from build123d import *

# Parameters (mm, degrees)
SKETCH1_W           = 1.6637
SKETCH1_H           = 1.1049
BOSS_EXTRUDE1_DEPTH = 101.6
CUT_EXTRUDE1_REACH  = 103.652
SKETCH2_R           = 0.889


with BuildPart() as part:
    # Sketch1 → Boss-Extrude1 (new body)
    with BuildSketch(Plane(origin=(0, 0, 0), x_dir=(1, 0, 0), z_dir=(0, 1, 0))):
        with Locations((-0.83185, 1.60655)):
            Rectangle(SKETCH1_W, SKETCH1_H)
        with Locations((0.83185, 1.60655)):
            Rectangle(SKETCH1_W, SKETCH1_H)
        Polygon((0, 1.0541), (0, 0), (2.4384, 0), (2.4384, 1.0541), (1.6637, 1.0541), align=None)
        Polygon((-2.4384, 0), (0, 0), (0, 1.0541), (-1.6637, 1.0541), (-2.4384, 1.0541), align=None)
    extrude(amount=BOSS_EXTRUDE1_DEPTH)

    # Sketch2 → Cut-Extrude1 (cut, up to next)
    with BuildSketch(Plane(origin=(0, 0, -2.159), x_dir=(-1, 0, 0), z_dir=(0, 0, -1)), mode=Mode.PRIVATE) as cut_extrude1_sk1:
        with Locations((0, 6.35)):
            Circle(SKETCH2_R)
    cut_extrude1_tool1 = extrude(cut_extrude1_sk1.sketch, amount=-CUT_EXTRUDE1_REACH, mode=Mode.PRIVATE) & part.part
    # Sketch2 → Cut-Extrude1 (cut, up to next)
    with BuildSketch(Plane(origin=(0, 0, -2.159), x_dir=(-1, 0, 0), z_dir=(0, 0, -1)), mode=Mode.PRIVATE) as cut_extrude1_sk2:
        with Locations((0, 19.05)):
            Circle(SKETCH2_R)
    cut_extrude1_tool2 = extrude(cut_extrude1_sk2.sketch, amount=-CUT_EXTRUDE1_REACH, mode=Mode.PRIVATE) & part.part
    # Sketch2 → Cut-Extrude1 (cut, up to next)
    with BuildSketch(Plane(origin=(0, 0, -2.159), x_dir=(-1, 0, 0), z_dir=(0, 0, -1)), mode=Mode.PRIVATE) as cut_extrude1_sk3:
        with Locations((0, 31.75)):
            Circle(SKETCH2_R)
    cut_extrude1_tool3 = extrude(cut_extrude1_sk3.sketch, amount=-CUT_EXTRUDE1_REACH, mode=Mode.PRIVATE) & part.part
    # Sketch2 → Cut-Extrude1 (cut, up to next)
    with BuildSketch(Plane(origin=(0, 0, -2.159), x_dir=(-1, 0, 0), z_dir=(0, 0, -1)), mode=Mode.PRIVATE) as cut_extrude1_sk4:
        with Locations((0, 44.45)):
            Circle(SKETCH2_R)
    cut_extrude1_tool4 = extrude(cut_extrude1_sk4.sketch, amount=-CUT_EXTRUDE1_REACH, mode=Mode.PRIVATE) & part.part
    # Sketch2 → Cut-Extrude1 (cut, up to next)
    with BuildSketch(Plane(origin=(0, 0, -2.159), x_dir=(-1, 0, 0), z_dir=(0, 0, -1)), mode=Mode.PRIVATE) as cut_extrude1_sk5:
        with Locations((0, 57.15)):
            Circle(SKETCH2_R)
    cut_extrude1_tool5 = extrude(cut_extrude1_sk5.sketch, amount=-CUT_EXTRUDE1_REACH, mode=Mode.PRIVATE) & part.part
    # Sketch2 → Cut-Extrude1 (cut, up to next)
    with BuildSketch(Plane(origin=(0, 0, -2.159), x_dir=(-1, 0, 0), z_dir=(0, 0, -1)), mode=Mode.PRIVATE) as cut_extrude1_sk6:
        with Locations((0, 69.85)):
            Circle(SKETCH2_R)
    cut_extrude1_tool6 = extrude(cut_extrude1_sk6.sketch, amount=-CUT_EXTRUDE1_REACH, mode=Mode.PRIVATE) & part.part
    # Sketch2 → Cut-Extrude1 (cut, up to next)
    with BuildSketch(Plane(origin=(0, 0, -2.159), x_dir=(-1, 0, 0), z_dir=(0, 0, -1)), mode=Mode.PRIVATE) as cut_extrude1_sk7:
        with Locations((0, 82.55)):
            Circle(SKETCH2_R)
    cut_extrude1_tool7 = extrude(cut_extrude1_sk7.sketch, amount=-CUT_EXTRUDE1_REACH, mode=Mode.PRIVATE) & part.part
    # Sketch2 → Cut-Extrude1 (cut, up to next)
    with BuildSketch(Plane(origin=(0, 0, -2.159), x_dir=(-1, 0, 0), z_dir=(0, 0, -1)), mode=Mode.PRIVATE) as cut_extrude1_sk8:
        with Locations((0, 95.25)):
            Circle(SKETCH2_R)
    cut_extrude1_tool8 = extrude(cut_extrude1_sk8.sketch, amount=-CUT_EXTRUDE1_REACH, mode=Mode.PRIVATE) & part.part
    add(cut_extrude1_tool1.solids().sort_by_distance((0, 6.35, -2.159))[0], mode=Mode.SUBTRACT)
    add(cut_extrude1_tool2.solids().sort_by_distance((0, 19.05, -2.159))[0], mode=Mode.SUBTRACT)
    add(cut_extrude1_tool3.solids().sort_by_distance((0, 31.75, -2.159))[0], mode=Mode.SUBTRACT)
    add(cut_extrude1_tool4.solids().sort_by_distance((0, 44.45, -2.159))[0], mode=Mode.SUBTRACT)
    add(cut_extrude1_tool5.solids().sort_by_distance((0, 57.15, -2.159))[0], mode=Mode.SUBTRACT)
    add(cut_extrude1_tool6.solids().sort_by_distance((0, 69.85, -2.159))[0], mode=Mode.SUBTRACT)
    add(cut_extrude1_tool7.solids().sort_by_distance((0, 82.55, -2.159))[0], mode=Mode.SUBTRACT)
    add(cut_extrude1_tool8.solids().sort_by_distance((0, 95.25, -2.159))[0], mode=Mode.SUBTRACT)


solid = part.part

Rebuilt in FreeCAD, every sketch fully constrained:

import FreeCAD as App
import Part
import Sketcher
Q = App.Units.Quantity

doc = App.newDocument("Part")
params = doc.addObject("Spreadsheet::Sheet", "Params")
for row, (alias, value) in enumerate([
    ("sketch1_width", "0.192 in"),
    ("sketch1_width2", "0.131 in"),
    ("pad1_length", "4 in"),
    ("sketch2_diameter", "0.07 in"),
    ("sketch3_diameter", "0.07 in"),
    ("sketch4_diameter", "0.07 in"),
    ("sketch5_diameter", "0.07 in"),
    ("sketch6_diameter", "0.07 in"),
    ("sketch7_diameter", "0.07 in"),
    ("sketch8_diameter", "0.07 in"),
    ("sketch9_diameter", "0.07 in"),
], start=1):
    params.set(f"A{row}", alias)
    params.set(f"B{row}", "=" + value)
    params.setAlias(f"B{row}", alias)

body = doc.addObject("PartDesign::Body", "Body")

sketch1 = body.newObject("Sketcher::SketchObject", "Sketch")
sketch1.AttachmentSupport = (doc.getObject("XZ_Plane"), [""])
sketch1.MapMode = "FlatFace"
sketch1.addGeometry([
    Part.LineSegment(App.Vector(-1.7, -2.2, 0), App.Vector(-1.7, -1.1, 0)),
    Part.LineSegment(App.Vector(-1.7, -1.1, 0), App.Vector(-2.4, -1.1, 0)),
    Part.LineSegment(App.Vector(-2.4, -1.1, 0), App.Vector(-2.4, 0, 0)),
    Part.LineSegment(App.Vector(-2.4, 0, 0), App.Vector(2.4, 0, 0)),
    Part.LineSegment(App.Vector(2.4, 0, 0), App.Vector(2.4, -1.1, 0)),
    Part.LineSegment(App.Vector(2.4, -1.1, 0), App.Vector(1.7, -1.1, 0)),
    Part.LineSegment(App.Vector(1.7, -1.1, 0), App.Vector(1.7, -2.2, 0)),
    Part.LineSegment(App.Vector(1.7, -2.2, 0), App.Vector(-1.7, -2.2, 0)),
], False)
sketch1.addConstraint([
    Sketcher.Constraint("Coincident", 0, 2, 1, 1),
    Sketcher.Constraint("Coincident", 1, 2, 2, 1),
    Sketcher.Constraint("Coincident", 2, 2, 3, 1),
    Sketcher.Constraint("Coincident", 3, 2, 4, 1),
    Sketcher.Constraint("Coincident", 4, 2, 5, 1),
    Sketcher.Constraint("Coincident", 5, 2, 6, 1),
    Sketcher.Constraint("Coincident", 6, 2, 7, 1),
    Sketcher.Constraint("Coincident", 7, 2, 0, 1),
    Sketcher.Constraint("Vertical", 0),
    Sketcher.Constraint("Horizontal", 1),
    Sketcher.Constraint("Vertical", 2),
    Sketcher.Constraint("Horizontal", 3),
    Sketcher.Constraint("Vertical", 4),
    Sketcher.Constraint("Horizontal", 5),
    Sketcher.Constraint("Vertical", 6),
    Sketcher.Constraint("Horizontal", 7),
    Sketcher.Constraint("Symmetric", 2, 2, 3, 2, -1, 1),
    Sketcher.Constraint("Symmetric", 0, 2, 5, 2, -2),
    Sketcher.Constraint("DistanceX", 3, 1, 3, 2, Q("0.192 in")),
    Sketcher.Constraint("DistanceX", 7, 2, 7, 1, Q("0.131 in")),
    Sketcher.Constraint("DistanceY", 0, 1, 0, 2, Q("0.0435 in")),
    Sketcher.Constraint("DistanceY", 2, 1, 2, 2, Q("0.0415 in")),
])
sketch1.setExpression("Constraints[18]", "Params.sketch1_width")
sketch1.setExpression("Constraints[19]", "Params.sketch1_width2")
pad1 = body.newObject("PartDesign::Pad", "Pad")
pad1.Profile = sketch1
pad1.setExpression("Length", "Params.pad1_length")
pad1.Reversed = True

sketch2 = body.newObject("Sketcher::SketchObject", "Sketch001")
sketch2.AttachmentSupport = (doc.getObject("XY_Plane"), [""])
sketch2.MapMode = "FlatFace"
sketch2.AttachmentOffset = App.Placement(App.Vector(0, 0, -0.085 * 25.4), App.Rotation())
sketch2.addGeometry(Part.Circle(App.Vector(0, 6.3, 0), App.Vector(0, 0, 1), 0.9), False)
sketch2.addConstraint([
    Sketcher.Constraint("PointOnObject", 0, 3, -2),
    Sketcher.Constraint("Diameter", 0, Q("0.07 in")),
    Sketcher.Constraint("DistanceY", -1, 1, 0, 3, Q("0.25 in")),
])
sketch2.setExpression("Constraints[1]", "Params.sketch2_diameter")
pocket1 = body.newObject("PartDesign::Pocket", "Pocket")
pocket1.Profile = sketch2
pocket1.Type = "UpToFirst"
pocket1.Reversed = True

sketch3 = body.newObject("Sketcher::SketchObject", "Sketch002")
sketch3.AttachmentSupport = (doc.getObject("XY_Plane"), [""])
sketch3.MapMode = "FlatFace"
sketch3.AttachmentOffset = App.Placement(App.Vector(0, 0, -0.085 * 25.4), App.Rotation())
sketch3.addGeometry(Part.Circle(App.Vector(0, 19.1, 0), App.Vector(0, 0, 1), 0.9), False)
sketch3.addConstraint([
    Sketcher.Constraint("PointOnObject", 0, 3, -2),
    Sketcher.Constraint("Diameter", 0, Q("0.07 in")),
    Sketcher.Constraint("DistanceY", -1, 1, 0, 3, Q("0.75 in")),
])
sketch3.setExpression("Constraints[1]", "Params.sketch3_diameter")
pocket2 = body.newObject("PartDesign::Pocket", "Pocket001")
pocket2.Profile = sketch3
pocket2.Type = "UpToFirst"
pocket2.Reversed = True

sketch4 = body.newObject("Sketcher::SketchObject", "Sketch003")
sketch4.AttachmentSupport = (doc.getObject("XY_Plane"), [""])
sketch4.MapMode = "FlatFace"
sketch4.AttachmentOffset = App.Placement(App.Vector(0, 0, -0.085 * 25.4), App.Rotation())
sketch4.addGeometry(Part.Circle(App.Vector(0, 31.8, 0), App.Vector(0, 0, 1), 0.9), False)
sketch4.addConstraint([
    Sketcher.Constraint("PointOnObject", 0, 3, -2),
    Sketcher.Constraint("Diameter", 0, Q("0.07 in")),
    Sketcher.Constraint("DistanceY", -1, 1, 0, 3, Q("1.25 in")),
])
sketch4.setExpression("Constraints[1]", "Params.sketch4_diameter")
pocket3 = body.newObject("PartDesign::Pocket", "Pocket002")
pocket3.Profile = sketch4
pocket3.Type = "UpToFirst"
pocket3.Reversed = True

sketch5 = body.newObject("Sketcher::SketchObject", "Sketch004")
sketch5.AttachmentSupport = (doc.getObject("XY_Plane"), [""])
sketch5.MapMode = "FlatFace"
sketch5.AttachmentOffset = App.Placement(App.Vector(0, 0, -0.085 * 25.4), App.Rotation())
sketch5.addGeometry(Part.Circle(App.Vector(0, 44.5, 0), App.Vector(0, 0, 1), 0.9), False)
sketch5.addConstraint([
    Sketcher.Constraint("PointOnObject", 0, 3, -2),
    Sketcher.Constraint("Diameter", 0, Q("0.07 in")),
    Sketcher.Constraint("DistanceY", -1, 1, 0, 3, Q("1.75 in")),
])
sketch5.setExpression("Constraints[1]", "Params.sketch5_diameter")
pocket4 = body.newObject("PartDesign::Pocket", "Pocket003")
pocket4.Profile = sketch5
pocket4.Type = "UpToFirst"
pocket4.Reversed = True

sketch6 = body.newObject("Sketcher::SketchObject", "Sketch005")
sketch6.AttachmentSupport = (doc.getObject("XY_Plane"), [""])
sketch6.MapMode = "FlatFace"
sketch6.AttachmentOffset = App.Placement(App.Vector(0, 0, -0.085 * 25.4), App.Rotation())
sketch6.addGeometry(Part.Circle(App.Vector(0, 57.1, 0), App.Vector(0, 0, 1), 0.9), False)
sketch6.addConstraint([
    Sketcher.Constraint("PointOnObject", 0, 3, -2),
    Sketcher.Constraint("Diameter", 0, Q("0.07 in")),
    Sketcher.Constraint("DistanceY", -1, 1, 0, 3, Q("2.25 in")),
])
sketch6.setExpression("Constraints[1]", "Params.sketch6_diameter")
pocket5 = body.newObject("PartDesign::Pocket", "Pocket004")
pocket5.Profile = sketch6
pocket5.Type = "UpToFirst"
pocket5.Reversed = True

sketch7 = body.newObject("Sketcher::SketchObject", "Sketch006")
sketch7.AttachmentSupport = (doc.getObject("XY_Plane"), [""])
sketch7.MapMode = "FlatFace"
sketch7.AttachmentOffset = App.Placement(App.Vector(0, 0, -0.085 * 25.4), App.Rotation())
sketch7.addGeometry(Part.Circle(App.Vector(0, 69.8, 0), App.Vector(0, 0, 1), 0.9), False)
sketch7.addConstraint([
    Sketcher.Constraint("PointOnObject", 0, 3, -2),
    Sketcher.Constraint("Diameter", 0, Q("0.07 in")),
    Sketcher.Constraint("DistanceY", -1, 1, 0, 3, Q("2.75 in")),
])
sketch7.setExpression("Constraints[1]", "Params.sketch7_diameter")
pocket6 = body.newObject("PartDesign::Pocket", "Pocket005")
pocket6.Profile = sketch7
pocket6.Type = "UpToFirst"
pocket6.Reversed = True

sketch8 = body.newObject("Sketcher::SketchObject", "Sketch007")
sketch8.AttachmentSupport = (doc.getObject("XY_Plane"), [""])
sketch8.MapMode = "FlatFace"
sketch8.AttachmentOffset = App.Placement(App.Vector(0, 0, -0.085 * 25.4), App.Rotation())
sketch8.addGeometry(Part.Circle(App.Vector(0, 82.5, 0), App.Vector(0, 0, 1), 0.9), False)
sketch8.addConstraint([
    Sketcher.Constraint("PointOnObject", 0, 3, -2),
    Sketcher.Constraint("Diameter", 0, Q("0.07 in")),
    Sketcher.Constraint("DistanceY", -1, 1, 0, 3, Q("3.25 in")),
])
sketch8.setExpression("Constraints[1]", "Params.sketch8_diameter")
pocket7 = body.newObject("PartDesign::Pocket", "Pocket006")
pocket7.Profile = sketch8
pocket7.Type = "UpToFirst"
pocket7.Reversed = True

sketch9 = body.newObject("Sketcher::SketchObject", "Sketch008")
sketch9.AttachmentSupport = (doc.getObject("XY_Plane"), [""])
sketch9.MapMode = "FlatFace"
sketch9.AttachmentOffset = App.Placement(App.Vector(0, 0, -0.085 * 25.4), App.Rotation())
sketch9.addGeometry(Part.Circle(App.Vector(0, 95.2, 0), App.Vector(0, 0, 1), 0.9), False)
sketch9.addConstraint([
    Sketcher.Constraint("PointOnObject", 0, 3, -2),
    Sketcher.Constraint("Diameter", 0, Q("0.07 in")),
    Sketcher.Constraint("DistanceY", -1, 1, 0, 3, Q("3.75 in")),
])
sketch9.setExpression("Constraints[1]", "Params.sketch9_diameter")
pocket8 = body.newObject("PartDesign::Pocket", "Pocket007")
pocket8.Profile = sketch9
pocket8.Type = "UpToFirst"
pocket8.Reversed = True

doc.recompute()
